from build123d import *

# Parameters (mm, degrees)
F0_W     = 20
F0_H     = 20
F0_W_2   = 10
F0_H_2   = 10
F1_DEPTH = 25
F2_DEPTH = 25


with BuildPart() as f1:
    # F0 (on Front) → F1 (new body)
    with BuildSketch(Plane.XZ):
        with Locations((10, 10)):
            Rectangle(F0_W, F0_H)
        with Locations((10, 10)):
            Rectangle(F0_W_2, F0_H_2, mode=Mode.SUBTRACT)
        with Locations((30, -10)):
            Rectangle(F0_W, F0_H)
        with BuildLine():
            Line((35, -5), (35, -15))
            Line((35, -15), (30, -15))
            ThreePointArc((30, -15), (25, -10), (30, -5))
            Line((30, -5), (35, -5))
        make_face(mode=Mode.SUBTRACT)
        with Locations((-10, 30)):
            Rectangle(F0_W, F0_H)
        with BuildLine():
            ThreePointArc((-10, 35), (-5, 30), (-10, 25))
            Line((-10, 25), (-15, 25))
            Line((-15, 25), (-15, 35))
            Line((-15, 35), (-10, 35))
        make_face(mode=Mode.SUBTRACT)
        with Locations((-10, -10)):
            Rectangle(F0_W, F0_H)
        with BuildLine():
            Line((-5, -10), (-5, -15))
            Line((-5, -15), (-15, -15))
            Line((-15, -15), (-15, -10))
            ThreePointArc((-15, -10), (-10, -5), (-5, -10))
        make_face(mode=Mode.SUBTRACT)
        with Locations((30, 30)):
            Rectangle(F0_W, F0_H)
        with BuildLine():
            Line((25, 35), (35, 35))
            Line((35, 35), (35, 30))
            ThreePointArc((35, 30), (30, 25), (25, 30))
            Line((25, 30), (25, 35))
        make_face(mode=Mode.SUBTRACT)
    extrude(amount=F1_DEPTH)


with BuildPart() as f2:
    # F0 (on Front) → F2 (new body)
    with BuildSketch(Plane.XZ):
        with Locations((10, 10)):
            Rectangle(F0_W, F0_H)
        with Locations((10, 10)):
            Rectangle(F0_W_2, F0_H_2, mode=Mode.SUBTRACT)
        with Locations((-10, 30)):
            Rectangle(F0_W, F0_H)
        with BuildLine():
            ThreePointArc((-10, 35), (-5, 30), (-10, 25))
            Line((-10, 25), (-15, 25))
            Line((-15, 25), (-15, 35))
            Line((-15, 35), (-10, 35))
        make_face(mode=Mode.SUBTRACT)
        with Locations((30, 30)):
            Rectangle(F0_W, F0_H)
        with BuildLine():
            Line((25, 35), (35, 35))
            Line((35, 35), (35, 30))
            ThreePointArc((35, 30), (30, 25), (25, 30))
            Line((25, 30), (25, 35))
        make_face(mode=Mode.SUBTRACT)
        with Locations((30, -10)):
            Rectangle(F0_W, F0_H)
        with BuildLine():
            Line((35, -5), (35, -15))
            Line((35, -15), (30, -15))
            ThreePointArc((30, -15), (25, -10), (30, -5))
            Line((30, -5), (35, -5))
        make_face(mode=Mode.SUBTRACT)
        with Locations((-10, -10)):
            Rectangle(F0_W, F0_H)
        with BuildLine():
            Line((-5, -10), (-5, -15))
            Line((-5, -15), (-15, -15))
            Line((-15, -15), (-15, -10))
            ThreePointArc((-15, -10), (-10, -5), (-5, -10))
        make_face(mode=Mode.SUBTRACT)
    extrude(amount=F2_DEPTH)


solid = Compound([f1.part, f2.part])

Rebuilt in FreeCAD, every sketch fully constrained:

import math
import FreeCAD as App
import Part
import Sketcher
Q = App.Units.Quantity


def add_polygon(sketch, points):
    """Adds a closed chain of lines whose ends are joined by coincident constraints."""
    first, n = sketch.GeometryCount, len(points)
    for a, b in zip(points, points[1:] + points[:1]):
        sketch.addGeometry(Part.LineSegment(App.Vector(*a, 0), App.Vector(*b, 0)), False)
    for i in range(n):
        sketch.addConstraint(Sketcher.Constraint("Coincident", first + i, 2, first + (i + 1) % n, 1))

doc = App.newDocument("Part")
body = doc.addObject("PartDesign::Body", "Body")
body.AllowCompound = True

# Sketch on XZ plane
sketch1 = body.newObject("Sketcher::SketchObject", "Sketch")
sketch1.AttachmentSupport = (doc.getObject("XZ_Plane"), [""])
sketch1.MapMode = "FlatFace"
add_polygon(sketch1, [(0, 20), (0, 0), (20, 0), (20, 20)])  # lines 0-3
add_polygon(sketch1, [(15, 5), (5, 5), (5, 15), (15, 15)])  # lines 4-7
add_polygon(sketch1, [(20, 0), (20, -20), (40, -20), (40, 0)])  # lines 8-11
sketch1.addGeometry(Part.LineSegment(App.Vector(30, -5, 0), App.Vector(35, -5, 0)), False)  # 12
sketch1.addGeometry(Part.LineSegment(App.Vector(35, -5, 0), App.Vector(35, -15, 0)), False)  # 13
sketch1.addGeometry(Part.LineSegment(App.Vector(35, -15, 0), App.Vector(30, -15, 0)), False)  # 14
sketch1.addGeometry(Part.ArcOfCircle(Part.Circle(App.Vector(30, -10, 0), App.Vector(0, 0, 1), 5), math.radians(90), math.radians(270)), False)  # 15
add_polygon(sketch1, [(-20, 40), (-20, 20), (0, 20), (0, 40)])  # lines 16-19
sketch1.addGeometry(Part.LineSegment(App.Vector(-15, 35, 0), App.Vector(-10, 35, 0)), False)  # 20
sketch1.addGeometry(Part.ArcOfCircle(Part.Circle(App.Vector(-10, 30, 0), App.Vector(0, 0, 1), 5), math.radians(-90), math.radians(90)), False)  # 21
sketch1.addGeometry(Part.LineSegment(App.Vector(-10, 25, 0), App.Vector(-15, 25, 0)), False)  # 22
sketch1.addGeometry(Part.LineSegment(App.Vector(-15, 25, 0), App.Vector(-15, 35, 0)), False)  # 23
add_polygon(sketch1, [(-20, 0), (-20, -20), (0, -20), (0, 0)])  # lines 24-27
sketch1.addGeometry(Part.ArcOfCircle(Part.Circle(App.Vector(-10, -10, 0), App.Vector(0, 0, 1), 5), math.radians(0), math.radians(180)), False)  # 28
sketch1.addGeometry(Part.LineSegment(App.Vector(-5, -10, 0), App.Vector(-5, -15, 0)), False)  # 29
sketch1.addGeometry(Part.LineSegment(App.Vector(-5, -15, 0), App.Vector(-15, -15, 0)), False)  # 30
sketch1.addGeometry(Part.LineSegment(App.Vector(-15, -15, 0), App.Vector(-15, -10, 0)), False)  # 31
add_polygon(sketch1, [(20, 40), (20, 20), (40, 20), (40, 40)])  # lines 32-35
sketch1.addGeometry(Part.LineSegment(App.Vector(25, 30, 0), App.Vector(25, 35, 0)), False)  # 36
sketch1.addGeometry(Part.LineSegment(App.Vector(25, 35, 0), App.Vector(35, 35, 0)), False)  # 37
sketch1.addGeometry(Part.LineSegment(App.Vector(35, 35, 0), App.Vector(35, 30, 0)), False)  # 38
sketch1.addGeometry(Part.ArcOfCircle(Part.Circle(App.Vector(30, 30, 0), App.Vector(0, 0, 1), 5), math.radians(180), math.radians(360)), False)  # 39
sketch1.addConstraint([
    Sketcher.Constraint("Coincident", 12, 2, 13, 1),
    Sketcher.Constraint("Coincident", 13, 2, 14, 1),
    Sketcher.Constraint("Tangent", 14, 2, 15, 2),
    Sketcher.Constraint("Tangent", 15, 1, 12, 1),
    Sketcher.Constraint("Tangent", 20, 2, 21, 2),
    Sketcher.Constraint("Tangent", 21, 1, 22, 1),
    Sketcher.Constraint("Coincident", 22, 2, 23, 1),
    Sketcher.Constraint("Coincident", 23, 2, 20, 1),
    Sketcher.Constraint("Tangent", 28, 1, 29, 1),
    Sketcher.Constraint("Coincident", 29, 2, 30, 1),
    Sketcher.Constraint("Coincident", 30, 2, 31, 1),
    Sketcher.Constraint("Tangent", 31, 2, 28, 2),
    Sketcher.Constraint("Coincident", 36, 2, 37, 1),
    Sketcher.Constraint("Coincident", 37, 2, 38, 1),
    Sketcher.Constraint("Tangent", 38, 2, 39, 2),
    Sketcher.Constraint("Tangent", 39, 1, 36, 1),
    Sketcher.Constraint("Vertical", 0),
    Sketcher.Constraint("Horizontal", 1),
    Sketcher.Constraint("Vertical", 2),
    Sketcher.Constraint("Horizontal", 3),
    Sketcher.Constraint("Horizontal", 4),
    Sketcher.Constraint("Vertical", 5),
    Sketcher.Constraint("Horizontal", 6),
    Sketcher.Constraint("Vertical", 7),
    Sketcher.Constraint("Vertical", 8),
    Sketcher.Constraint("Horizontal", 9),
    Sketcher.Constraint("Vertical", 10),
    Sketcher.Constraint("Horizontal", 11),
    Sketcher.Constraint("Horizontal", 12),
    Sketcher.Constraint("Vertical", 13),
    Sketcher.Constraint("Horizontal", 14),
    Sketcher.Constraint("Vertical", 16),
    Sketcher.Constraint("Horizontal", 17),
    Sketcher.Constraint("Vertical", 18),
    Sketcher.Constraint("Horizontal", 19),
    Sketcher.Constraint("Horizontal", 20),
    Sketcher.Constraint("Horizontal", 22),
    Sketcher.Constraint("Vertical", 23),
    Sketcher.Constraint("Vertical", 24),
    Sketcher.Constraint("Horizontal", 25),
    Sketcher.Constraint("Vertical", 26),
    Sketcher.Constraint("Horizontal", 27),
    Sketcher.Constraint("Vertical", 29),
    Sketcher.Constraint("Horizontal", 30),
    Sketcher.Constraint("Vertical", 31),
    Sketcher.Constraint("Vertical", 32),
    Sketcher.Constraint("Horizontal", 33),
    Sketcher.Constraint("Vertical", 34),
    Sketcher.Constraint("Horizontal", 35),
    Sketcher.Constraint("Vertical", 36),
    Sketcher.Constraint("Horizontal", 37),
    Sketcher.Constraint("Vertical", 38),
    Sketcher.Constraint("Coincident", 0, 2, -1, 1),
    Sketcher.Constraint("Coincident", 26, 2, -1, 1),
    Sketcher.Constraint("Coincident", 11, 2, 1, 2),
    Sketcher.Constraint("Coincident", 17, 2, 3, 2),
    Sketcher.Constraint("Coincident", 32, 2, 2, 2),
    Sketcher.Constraint("Equal", 15, 21),
    Sketcher.Constraint("Equal", 21, 28),
    Sketcher.Constraint("Equal", 28, 39),
    Sketcher.Constraint("Symmetric", 8, 2, 16, 2, -1, 1),
    Sketcher.Constraint("Symmetric", 2, 2, 24, 2, -1, 1),
    Sketcher.Constraint("Symmetric", 5, 2, 29, 2, -1, 1),
    Sketcher.Constraint("Horizontal", 15, 3, 28, 3),
    Sketcher.Constraint("Horizontal", 21, 3, 39, 3),
    Sketcher.Constraint("Horizontal", 14, 2, 29, 2),
    Sketcher.Constraint("Horizontal", 19, 2, 34, 2),
    Sketcher.Constraint("Horizontal", 23, 2, 36, 2),
    Sketcher.Constraint("Vertical", 21, 3, 28, 3),
    Sketcher.Constraint("Vertical", 15, 3, 39, 3),
    Sketcher.Constraint("Vertical", 23, 2, 30, 2),
    Sketcher.Constraint("Vertical", 10, 2, 33, 2),
    Sketcher.Constraint("Vertical", 13, 2, 37, 2),
    Sketcher.Constraint("Equal", 3, 9),
    Sketcher.Constraint("Equal", 6, 30),
    Sketcher.Constraint("Equal", 35, 0),
    Sketcher.Constraint("Equal", 37, 5),
    Sketcher.Constraint("Equal", 10, 16),
    Sketcher.Constraint("Radius", 15, Q("5 mm")),
    Sketcher.Constraint("DistanceX", 1, 1, 1, 2, Q("20 mm")),
    Sketcher.Constraint("DistanceX", -1, 1, 15, 3, Q("30 mm")),
    Sketcher.Constraint("DistanceY", 15, 3, -1, 1, Q("10 mm")),
    Sketcher.Constraint("DistanceX", 21, 3, -1, 1, Q("10 mm")),
    Sketcher.Constraint("DistanceY", -1, 1, 21, 3, Q("30 mm")),
])
pad1 = body.newObject("PartDesign::Pad", "Pad")
pad1.Profile = sketch1
pad1.Length = 25
body2 = doc.addObject("PartDesign::Body", "Body001")
body2.AllowCompound = True

# Sketch on XZ plane
sketch2 = body2.newObject("Sketcher::SketchObject", "Sketch001")
sketch2.AttachmentSupport = (doc.getObject("XZ_Plane001"), [""])
sketch2.MapMode = "FlatFace"
add_polygon(sketch2, [(0, 20), (0, 0), (20, 0), (20, 20)])  # lines 0-3
add_polygon(sketch2, [(15, 5), (5, 5), (5, 15), (15, 15)])  # lines 4-7
add_polygon(sketch2, [(-20, 40), (-20, 20), (0, 20), (0, 40)])  # lines 8-11
sketch2.addGeometry(Part.LineSegment(App.Vector(-15, 35, 0), App.Vector(-10, 35, 0)), False)  # 12
sketch2.addGeometry(Part.ArcOfCircle(Part.Circle(App.Vector(-10, 30, 0), App.Vector(0, 0, 1), 5), math.radians(-90), math.radians(90)), False)  # 13
sketch2.addGeometry(Part.LineSegment(App.Vector(-10, 25, 0), App.Vector(-15, 25, 0)), False)  # 14
sketch2.addGeometry(Part.LineSegment(App.Vector(-15, 25, 0), App.Vector(-15, 35, 0)), False)  # 15
add_polygon(sketch2, [(20, 40), (20, 20), (40, 20), (40, 40)])  # lines 16-19
sketch2.addGeometry(Part.LineSegment(App.Vector(25, 30, 0), App.Vector(25, 35, 0)), False)  # 20
sketch2.addGeometry(Part.LineSegment(App.Vector(25, 35, 0), App.Vector(35, 35, 0)), False)  # 21
sketch2.addGeometry(Part.LineSegment(App.Vector(35, 35, 0), App.Vector(35, 30, 0)), False)  # 22
sketch2.addGeometry(Part.ArcOfCircle(Part.Circle(App.Vector(30, 30, 0), App.Vector(0, 0, 1), 5), math.radians(180), math.radians(360)), False)  # 23
add_polygon(sketch2, [(20, 0), (20, -20), (40, -20), (40, 0)])  # lines 24-27
sketch2.addGeometry(Part.LineSegment(App.Vector(30, -5, 0), App.Vector(35, -5, 0)), False)  # 28
sketch2.addGeometry(Part.LineSegment(App.Vector(35, -5, 0), App.Vector(35, -15, 0)), False)  # 29
sketch2.addGeometry(Part.LineSegment(App.Vector(35, -15, 0), App.Vector(30, -15, 0)), False)  # 30
sketch2.addGeometry(Part.ArcOfCircle(Part.Circle(App.Vector(30, -10, 0), App.Vector(0, 0, 1), 5), math.radians(90), math.radians(270)), False)  # 31
add_polygon(sketch2, [(-20, 0), (-20, -20), (0, -20), (0, 0)])  # lines 32-35
sketch2.addGeometry(Part.ArcOfCircle(Part.Circle(App.Vector(-10, -10, 0), App.Vector(0, 0, 1), 5), math.radians(0), math.radians(180)), False)  # 36
sketch2.addGeometry(Part.LineSegment(App.Vector(-5, -10, 0), App.Vector(-5, -15, 0)), False)  # 37
sketch2.addGeometry(Part.LineSegment(App.Vector(-5, -15, 0), App.Vector(-15, -15, 0)), False)  # 38
sketch2.addGeometry(Part.LineSegment(App.Vector(-15, -15, 0), App.Vector(-15, -10, 0)), False)  # 39
sketch2.addConstraint([
    Sketcher.Constraint("Tangent", 12, 2, 13, 2),
    Sketcher.Constraint("Tangent", 13, 1, 14, 1),
    Sketcher.Constraint("Coincident", 14, 2, 15, 1),
    Sketcher.Constraint("Coincident", 15, 2, 12, 1),
    Sketcher.Constraint("Coincident", 20, 2, 21, 1),
    Sketcher.Constraint("Coincident", 21, 2, 22, 1),
    Sketcher.Constraint("Tangent", 22, 2, 23, 2),
    Sketcher.Constraint("Tangent", 23, 1, 20, 1),
    Sketcher.Constraint("Coincident", 28, 2, 29, 1),
    Sketcher.Constraint("Coincident", 29, 2, 30, 1),
    Sketcher.Constraint("Tangent", 30, 2, 31, 2),
    Sketcher.Constraint("Tangent", 31, 1, 28, 1),
    Sketcher.Constraint("Tangent", 36, 1, 37, 1),
    Sketcher.Constraint("Coincident", 37, 2, 38, 1),
    Sketcher.Constraint("Coincident", 38, 2, 39, 1),
    Sketcher.Constraint("Tangent", 39, 2, 36, 2),
    Sketcher.Constraint("Vertical", 0),
    Sketcher.Constraint("Horizontal", 1),
    Sketcher.Constraint("Vertical", 2),
    Sketcher.Constraint("Horizontal", 3),
    Sketcher.Constraint("Horizontal", 4),
    Sketcher.Constraint("Vertical", 5),
    Sketcher.Constraint("Horizontal", 6),
    Sketcher.Constraint("Vertical", 7),
    Sketcher.Constraint("Vertical", 8),
    Sketcher.Constraint("Horizontal", 9),
    Sketcher.Constraint("Vertical", 10),
    Sketcher.Constraint("Horizontal", 11),
    Sketcher.Constraint("Horizontal", 12),
    Sketcher.Constraint("Horizontal", 14),
    Sketcher.Constraint("Vertical", 15),
    Sketcher.Constraint("Vertical", 16),
    Sketcher.Constraint("Horizontal", 17),
    Sketcher.Constraint("Vertical", 18),
    Sketcher.Constraint("Horizontal", 19),
    Sketcher.Constraint("Vertical", 20),
    Sketcher.Constraint("Horizontal", 21),
    Sketcher.Constraint("Vertical", 22),
    Sketcher.Constraint("Vertical", 24),
    Sketcher.Constraint("Horizontal", 25),
    Sketcher.Constraint("Vertical", 26),
    Sketcher.Constraint("Horizontal", 27),
    Sketcher.Constraint("Horizontal", 28),
    Sketcher.Constraint("Vertical", 29),
    Sketcher.Constraint("Horizontal", 30),
    Sketcher.Constraint("Vertical", 32),
    Sketcher.Constraint("Horizontal", 33),
    Sketcher.Constraint("Vertical", 34),
    Sketcher.Constraint("Horizontal", 35),
    Sketcher.Constraint("Vertical", 37),
    Sketcher.Constraint("Horizontal", 38),
    Sketcher.Constraint("Vertical", 39),
    Sketcher.Constraint("Coincident", 0, 2, -1, 1),
    Sketcher.Constraint("Coincident", 34, 2, -1, 1),
    Sketcher.Constraint("Coincident", 9, 2, 3, 2),
    Sketcher.Constraint("Coincident", 16, 2, 2, 2),
    Sketcher.Constraint("Coincident", 27, 2, 1, 2),
    Sketcher.Constraint("Equal", 13, 23),
    Sketcher.Constraint("Equal", 23, 31),
    Sketcher.Constraint("Equal", 31, 36),
    Sketcher.Constraint("Symmetric", 8, 2, 24, 2, -1, 1),
    Sketcher.Constraint("Symmetric", 2, 2, 32, 2, -1, 1),
    Sketcher.Constraint("Symmetric", 5, 2, 37, 2, -1, 1),
    Sketcher.Constraint("Horizontal", 13, 3, 23, 3),
    Sketcher.Constraint("Horizontal", 31, 3, 36, 3),
    Sketcher.Constraint("Horizontal", 11, 2, 18, 2),
    Sketcher.Constraint("Horizontal", 15, 2, 20, 2),
    Sketcher.Constraint("Horizontal", 30, 2, 37, 2),
    Sketcher.Constraint("Vertical", 23, 3, 31, 3),
    Sketcher.Constraint("Vertical", 13, 3, 36, 3),
    Sketcher.Constraint("Vertical", 18, 2, 25, 2),
    Sketcher.Constraint("Vertical", 22, 2, 28, 2),
    Sketcher.Constraint("Vertical", 15, 2, 38, 2),
    Sketcher.Constraint("Equal", 11, 17),
    Sketcher.Constraint("Equal", 6, 21),
    Sketcher.Constraint("Equal", 35, 0),
    Sketcher.Constraint("Equal", 38, 5),
    Sketcher.Constraint("Equal", 2, 8),
    Sketcher.Constraint("Radius", 13, Q("5 mm")),
    Sketcher.Constraint("DistanceX", 1, 1, 1, 2, Q("20 mm")),
    Sketcher.Constraint("DistanceX", 13, 3, -1, 1, Q("10 mm")),
    Sketcher.Constraint("DistanceY", -1, 1, 13, 3, Q("30 mm")),
    Sketcher.Constraint("DistanceX", -1, 1, 23, 3, Q("30 mm")),
    Sketcher.Constraint("DistanceY", 31, 3, -1, 1, Q("10 mm")),
])
pad2 = body2.newObject("PartDesign::Pad", "Pad001")
pad2.Profile = sketch2
pad2.Length = 25

doc.recompute()
